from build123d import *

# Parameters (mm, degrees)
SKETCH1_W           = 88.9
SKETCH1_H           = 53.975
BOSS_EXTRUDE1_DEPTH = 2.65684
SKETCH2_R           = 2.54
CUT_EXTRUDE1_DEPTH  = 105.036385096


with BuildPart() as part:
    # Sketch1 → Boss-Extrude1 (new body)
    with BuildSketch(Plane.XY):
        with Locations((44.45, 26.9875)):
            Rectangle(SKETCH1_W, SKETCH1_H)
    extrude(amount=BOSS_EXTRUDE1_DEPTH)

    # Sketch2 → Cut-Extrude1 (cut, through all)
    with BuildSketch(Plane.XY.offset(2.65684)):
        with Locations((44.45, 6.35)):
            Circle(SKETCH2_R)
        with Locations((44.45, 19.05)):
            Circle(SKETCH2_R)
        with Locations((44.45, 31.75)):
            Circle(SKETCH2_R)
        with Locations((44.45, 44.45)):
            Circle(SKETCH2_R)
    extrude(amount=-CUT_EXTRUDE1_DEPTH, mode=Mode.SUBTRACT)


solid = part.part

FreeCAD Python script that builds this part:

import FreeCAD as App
import Part
import Sketcher
from FreeCAD import Vector
Q = App.Units.Quantity


def add_polygon(sketch, points):
    """Adds a closed chain of lines whose ends are joined by coincident constraints."""
    first, n = sketch.GeometryCount, len(points)
    for a, b in zip(points, points[1:] + points[:1]):
        sketch.addGeometry(Part.LineSegment(App.Vector(*a, 0), App.Vector(*b, 0)), False)
    for i in range(n):
        sketch.addConstraint(Sketcher.Constraint("Coincident", first + i, 2, first + (i + 1) % n, 1))

doc = App.newDocument("Part")
params = doc.addObject("Spreadsheet::Sheet", "Params")
for row, (alias, value) in enumerate([
    ("sketch1_width", "3.5 in"),
    ("sketch1_height", "2.125 in"),
    ("pad1_length", "0.1046 in"),
    ("sketch2_diameter", "0.2 in"),
], start=1):
    params.set(f"A{row}", alias)
    params.set(f"B{row}", "=" + value)
    params.setAlias(f"B{row}", alias)

body = doc.addObject("PartDesign::Body", "Body")

sketch1 = body.newObject("Sketcher::SketchObject", "Sketch")
sketch1.AttachmentSupport = (doc.getObject("XY_Plane"), [""])
sketch1.MapMode = "FlatFace"
add_polygon(sketch1, [(0, 54), (0, 0), (89, 0), (89, 54)])
sketch1.addConstraint([
    Sketcher.Constraint("Vertical", 0),
    Sketcher.Constraint("Horizontal", 1),
    Sketcher.Constraint("Vertical", 2),
    Sketcher.Constraint("Horizontal", 3),
    Sketcher.Constraint("Coincident", 0, 2, -1, 1),
    Sketcher.Constraint("DistanceX", 1, 1, 1, 2, Q("3.5 in")),
    Sketcher.Constraint("DistanceY", 0, 2, 0, 1, Q("2.125 in")),
])
sketch1.setExpression("Constraints[9]", "Params.sketch1_width")
sketch1.setExpression("Constraints[10]", "Params.sketch1_height")
pad1 = body.newObject("PartDesign::Pad", "Pad")
pad1.Profile = sketch1
pad1.setExpression("Length", "Params.pad1_length")

sketch2 = body.newObject("Sketcher::SketchObject", "Sketch001")
sketch2.AttachmentSupport = (doc.getObject("XY_Plane"), [""])
sketch2.MapMode = "FlatFace"
sketch2.AttachmentOffset = App.Placement(Vector(0, 0, 0.1046 * 25.4), App.Rotation())
sketch2.addGeometry([
    Part.Circle(Vector(44.5, 6.3, 0), Vector(0, 0, 1), 2.5),
    Part.Circle(Vector(44.5, 19.1, 0), Vector(0, 0, 1), 2.5),
    Part.Circle(Vector(44.5, 31.8, 0), Vector(0, 0, 1), 2.5),
    Part.Circle(Vector(44.5, 44.5, 0), Vector(0, 0, 1), 2.5),
], False)
sketch2.addConstraint([
    Sketcher.Constraint("Equal", 0, 1),
    Sketcher.Constraint("Equal", 1, 2),
    Sketcher.Constraint("Equal", 2, 3),
    Sketcher.Constraint("Vertical", 0, 3, 1, 3),
    Sketcher.Constraint("Vertical", 1, 3, 2, 3),
    Sketcher.Constraint("Vertical", 2, 3, 3, 3),
    Sketcher.Constraint("Diameter", 0, Q("0.2 in")),
    Sketcher.Constraint("DistanceY", 0, 3, 2, 3, Q("1 in")),
    Sketcher.Constraint("DistanceY", 1, 3, 3, 3, Q("1 in")),
    Sketcher.Constraint("DistanceY", 0, 3, 1, 3, Q("0.5 in")),
    Sketcher.Constraint("DistanceX", -1, 1, 0, 3, Q("1.75 in")),
    Sketcher.Constraint("DistanceY", -1, 1, 0, 3, Q("0.25 in")),
])
sketch2.setExpression("Constraints[6]", "Params.sketch2_diameter")
pocket1 = body.newObject("PartDesign::Pocket", "Pocket")
pocket1.Profile = sketch2
pocket1.Type = "ThroughAll"

doc.recompute()
